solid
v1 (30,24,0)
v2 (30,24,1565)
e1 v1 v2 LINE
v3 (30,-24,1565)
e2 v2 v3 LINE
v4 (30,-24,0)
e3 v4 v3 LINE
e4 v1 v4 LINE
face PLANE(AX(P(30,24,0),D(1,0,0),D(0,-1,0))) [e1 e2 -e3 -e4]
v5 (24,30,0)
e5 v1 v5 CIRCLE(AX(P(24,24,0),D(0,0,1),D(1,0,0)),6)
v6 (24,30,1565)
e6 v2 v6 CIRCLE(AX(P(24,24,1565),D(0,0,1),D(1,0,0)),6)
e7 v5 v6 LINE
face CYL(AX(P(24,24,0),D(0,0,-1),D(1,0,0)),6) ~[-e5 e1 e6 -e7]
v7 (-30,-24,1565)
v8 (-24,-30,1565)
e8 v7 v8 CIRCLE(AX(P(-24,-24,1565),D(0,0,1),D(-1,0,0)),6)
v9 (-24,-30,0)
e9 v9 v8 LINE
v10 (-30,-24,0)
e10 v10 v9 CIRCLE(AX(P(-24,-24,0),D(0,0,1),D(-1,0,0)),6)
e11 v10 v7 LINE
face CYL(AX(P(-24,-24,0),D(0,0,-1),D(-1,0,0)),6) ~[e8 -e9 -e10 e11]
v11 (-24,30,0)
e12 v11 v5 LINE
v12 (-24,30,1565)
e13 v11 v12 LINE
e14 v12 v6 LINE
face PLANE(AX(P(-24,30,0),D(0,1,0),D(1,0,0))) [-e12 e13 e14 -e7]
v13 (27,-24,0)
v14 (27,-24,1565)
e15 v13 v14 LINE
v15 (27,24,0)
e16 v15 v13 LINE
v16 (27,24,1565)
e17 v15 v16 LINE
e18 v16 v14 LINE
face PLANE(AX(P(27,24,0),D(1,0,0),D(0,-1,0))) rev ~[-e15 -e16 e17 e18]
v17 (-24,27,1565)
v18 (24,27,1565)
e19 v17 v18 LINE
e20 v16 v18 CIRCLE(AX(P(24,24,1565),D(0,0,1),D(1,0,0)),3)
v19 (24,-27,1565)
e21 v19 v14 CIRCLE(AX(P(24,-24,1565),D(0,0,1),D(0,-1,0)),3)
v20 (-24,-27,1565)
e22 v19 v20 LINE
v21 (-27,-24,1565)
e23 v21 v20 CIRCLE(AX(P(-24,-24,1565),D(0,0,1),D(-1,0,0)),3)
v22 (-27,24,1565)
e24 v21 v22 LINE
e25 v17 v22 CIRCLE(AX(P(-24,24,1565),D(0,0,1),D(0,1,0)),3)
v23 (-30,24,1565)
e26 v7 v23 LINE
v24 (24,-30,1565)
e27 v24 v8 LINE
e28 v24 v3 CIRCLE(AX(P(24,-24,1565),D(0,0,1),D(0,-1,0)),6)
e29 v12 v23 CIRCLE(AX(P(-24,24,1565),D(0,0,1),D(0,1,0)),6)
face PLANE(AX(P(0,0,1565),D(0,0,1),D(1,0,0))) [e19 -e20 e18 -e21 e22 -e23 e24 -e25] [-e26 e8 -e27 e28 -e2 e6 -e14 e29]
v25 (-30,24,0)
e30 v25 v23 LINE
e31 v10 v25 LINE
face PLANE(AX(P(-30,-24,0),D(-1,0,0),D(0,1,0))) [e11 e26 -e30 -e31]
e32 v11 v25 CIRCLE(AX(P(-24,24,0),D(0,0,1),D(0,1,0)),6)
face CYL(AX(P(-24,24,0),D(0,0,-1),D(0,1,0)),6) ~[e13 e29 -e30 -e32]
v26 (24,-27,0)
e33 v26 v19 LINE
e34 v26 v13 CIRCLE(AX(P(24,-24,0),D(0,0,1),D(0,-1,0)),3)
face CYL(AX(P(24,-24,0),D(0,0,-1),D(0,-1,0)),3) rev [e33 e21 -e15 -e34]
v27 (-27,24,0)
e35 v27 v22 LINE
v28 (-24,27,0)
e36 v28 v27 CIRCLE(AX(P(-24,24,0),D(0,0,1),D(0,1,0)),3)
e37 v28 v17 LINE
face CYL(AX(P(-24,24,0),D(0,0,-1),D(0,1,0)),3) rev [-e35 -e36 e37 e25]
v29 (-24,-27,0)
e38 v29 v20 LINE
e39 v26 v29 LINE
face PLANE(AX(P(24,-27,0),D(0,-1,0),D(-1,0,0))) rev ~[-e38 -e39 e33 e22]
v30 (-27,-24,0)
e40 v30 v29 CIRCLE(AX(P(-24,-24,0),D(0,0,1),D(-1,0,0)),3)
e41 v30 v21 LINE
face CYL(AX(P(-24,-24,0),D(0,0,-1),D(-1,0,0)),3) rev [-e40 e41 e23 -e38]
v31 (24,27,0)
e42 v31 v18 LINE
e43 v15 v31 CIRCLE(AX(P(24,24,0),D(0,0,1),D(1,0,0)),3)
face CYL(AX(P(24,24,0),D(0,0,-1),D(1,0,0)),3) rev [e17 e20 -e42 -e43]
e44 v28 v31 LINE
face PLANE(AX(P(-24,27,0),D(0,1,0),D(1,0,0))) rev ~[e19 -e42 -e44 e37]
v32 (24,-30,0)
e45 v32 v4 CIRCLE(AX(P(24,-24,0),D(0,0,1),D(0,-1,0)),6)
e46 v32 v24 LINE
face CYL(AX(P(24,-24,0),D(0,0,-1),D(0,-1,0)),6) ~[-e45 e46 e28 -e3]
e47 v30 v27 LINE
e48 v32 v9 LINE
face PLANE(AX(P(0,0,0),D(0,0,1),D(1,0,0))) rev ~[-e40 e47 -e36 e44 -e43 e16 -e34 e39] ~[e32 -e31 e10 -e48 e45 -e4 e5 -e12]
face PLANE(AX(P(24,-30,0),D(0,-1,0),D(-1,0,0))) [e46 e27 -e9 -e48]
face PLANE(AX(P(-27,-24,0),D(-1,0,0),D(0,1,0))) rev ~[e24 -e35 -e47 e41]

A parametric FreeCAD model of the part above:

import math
import FreeCAD as App
import Part
import Sketcher

doc = App.newDocument("Part")
params = doc.addObject("Spreadsheet::Sheet", "Params")
for row, (alias, value) in enumerate([
    ("sketch1_radius", "6 mm"),
    ("sketch1_radius2", "3 mm"),
    ("pad1_length", "1565 mm"),
], start=1):
    params.set(f"A{row}", alias)
    params.set(f"B{row}", "=" + value)
    params.setAlias(f"B{row}", alias)

body = doc.addObject("PartDesign::Body", "Body")

sketch1 = body.newObject("Sketcher::SketchObject", "Sketch")
sketch1.AttachmentSupport = (doc.getObject("XY_Plane"), [""])
sketch1.MapMode = "FlatFace"
sketch1.addGeometry([
    Part.LineSegment(App.Vector(-30, 24, 0), App.Vector(-30, -24, 0)),
    Part.ArcOfCircle(Part.Circle(App.Vector(-24, -24, 0), App.Vector(0, 0, 1), 6), math.radians(180), math.radians(270)),
    Part.LineSegment(App.Vector(-24, -30, 0), App.Vector(24, -30, 0)),
    Part.ArcOfCircle(Part.Circle(App.Vector(24, -24, 0), App.Vector(0, 0, 1), 6), math.radians(-90), math.radians(0)),
    Part.LineSegment(App.Vector(30, -24, 0), App.Vector(30, 24, 0)),
    Part.ArcOfCircle(Part.Circle(App.Vector(24, 24, 0), App.Vector(0, 0, 1), 6), math.radians(0), math.radians(90)),
    Part.LineSegment(App.Vector(24, 30, 0), App.Vector(-24, 30, 0)),
    Part.ArcOfCircle(Part.Circle(App.Vector(-24, 24, 0), App.Vector(0, 0, 1), 6), math.radians(90), math.radians(180)),
    Part.ArcOfCircle(Part.Circle(App.Vector(-24, 24, 0), App.Vector(0, 0, 1), 3), math.radians(90), math.radians(180)),
    Part.LineSegment(App.Vector(-24, 27, 0), App.Vector(24, 27, 0)),
    Part.ArcOfCircle(Part.Circle(App.Vector(24, 24, 0), App.Vector(0, 0, 1), 3), math.radians(0), math.radians(90)),
    Part.LineSegment(App.Vector(27, 24, 0), App.Vector(27, -24, 0)),
    Part.ArcOfCircle(Part.Circle(App.Vector(24, -24, 0), App.Vector(0, 0, 1), 3), math.radians(-90), math.radians(0)),
    Part.LineSegment(App.Vector(24, -27, 0), App.Vector(-24, -27, 0)),
    Part.ArcOfCircle(Part.Circle(App.Vector(-24, -24, 0), App.Vector(0, 0, 1), 3), math.radians(180), math.radians(270)),
    Part.LineSegment(App.Vector(-27, -24, 0), App.Vector(-27, 24, 0)),
], False)
sketch1.addConstraint([
    Sketcher.Constraint("Tangent", 0, 2, 1, 1),
    Sketcher.Constraint("Tangent", 1, 2, 2, 1),
    Sketcher.Constraint("Tangent", 2, 2, 3, 1),
    Sketcher.Constraint("Tangent", 3, 2, 4, 1),
    Sketcher.Constraint("Tangent", 4, 2, 5, 1),
    Sketcher.Constraint("Tangent", 5, 2, 6, 1),
    Sketcher.Constraint("Tangent", 6, 2, 7, 1),
    Sketcher.Constraint("Tangent", 7, 2, 0, 1),
    Sketcher.Constraint("Tangent", 8, 1, 9, 1),
    Sketcher.Constraint("Tangent", 9, 2, 10, 2),
    Sketcher.Constraint("Tangent", 10, 1, 11, 1),
    Sketcher.Constraint("Tangent", 11, 2, 12, 2),
    Sketcher.Constraint("Tangent", 12, 1, 13, 1),
    Sketcher.Constraint("Tangent", 13, 2, 14, 2),
    Sketcher.Constraint("Tangent", 14, 1, 15, 1),
    Sketcher.Constraint("Tangent", 15, 2, 8, 2),
    Sketcher.Constraint("Vertical", 0),
    Sketcher.Constraint("Horizontal", 2),
    Sketcher.Constraint("Vertical", 4),
    Sketcher.Constraint("Horizontal", 6),
    Sketcher.Constraint("Horizontal", 9),
    Sketcher.Constraint("Vertical", 11),
    Sketcher.Constraint("Horizontal", 13),
    Sketcher.Constraint("Vertical", 15),
    Sketcher.Constraint("Coincident", 8, 3, 7, 3),
    Sketcher.Constraint("Coincident", 10, 3, 5, 3),
    Sketcher.Constraint("Coincident", 12, 3, 3, 3),
    Sketcher.Constraint("Equal", 1, 3),
    Sketcher.Constraint("Equal", 3, 5),
    Sketcher.Constraint("Equal", 5, 7),
    Sketcher.Constraint("Equal", 12, 14),
    Sketcher.Constraint("Symmetric", 1, 3, 5, 3, -1, 1),
    Sketcher.Constraint("Equal", 13, 0),
    Sketcher.Constraint("Radius", 1, 6.0),
    Sketcher.Constraint("Radius", 8, 3.0),
    Sketcher.Constraint("DistanceX", 0, 2, -1, 1, 30.0),
])
sketch1.setExpression("Constraints[33]", "Params.sketch1_radius")
sketch1.setExpression("Constraints[34]", "Params.sketch1_radius2")
pad1 = body.newObject("PartDesign::Pad", "Pad")
pad1.Profile = sketch1
pad1.setExpression("Length", "Params.pad1_length")

doc.recompute()
